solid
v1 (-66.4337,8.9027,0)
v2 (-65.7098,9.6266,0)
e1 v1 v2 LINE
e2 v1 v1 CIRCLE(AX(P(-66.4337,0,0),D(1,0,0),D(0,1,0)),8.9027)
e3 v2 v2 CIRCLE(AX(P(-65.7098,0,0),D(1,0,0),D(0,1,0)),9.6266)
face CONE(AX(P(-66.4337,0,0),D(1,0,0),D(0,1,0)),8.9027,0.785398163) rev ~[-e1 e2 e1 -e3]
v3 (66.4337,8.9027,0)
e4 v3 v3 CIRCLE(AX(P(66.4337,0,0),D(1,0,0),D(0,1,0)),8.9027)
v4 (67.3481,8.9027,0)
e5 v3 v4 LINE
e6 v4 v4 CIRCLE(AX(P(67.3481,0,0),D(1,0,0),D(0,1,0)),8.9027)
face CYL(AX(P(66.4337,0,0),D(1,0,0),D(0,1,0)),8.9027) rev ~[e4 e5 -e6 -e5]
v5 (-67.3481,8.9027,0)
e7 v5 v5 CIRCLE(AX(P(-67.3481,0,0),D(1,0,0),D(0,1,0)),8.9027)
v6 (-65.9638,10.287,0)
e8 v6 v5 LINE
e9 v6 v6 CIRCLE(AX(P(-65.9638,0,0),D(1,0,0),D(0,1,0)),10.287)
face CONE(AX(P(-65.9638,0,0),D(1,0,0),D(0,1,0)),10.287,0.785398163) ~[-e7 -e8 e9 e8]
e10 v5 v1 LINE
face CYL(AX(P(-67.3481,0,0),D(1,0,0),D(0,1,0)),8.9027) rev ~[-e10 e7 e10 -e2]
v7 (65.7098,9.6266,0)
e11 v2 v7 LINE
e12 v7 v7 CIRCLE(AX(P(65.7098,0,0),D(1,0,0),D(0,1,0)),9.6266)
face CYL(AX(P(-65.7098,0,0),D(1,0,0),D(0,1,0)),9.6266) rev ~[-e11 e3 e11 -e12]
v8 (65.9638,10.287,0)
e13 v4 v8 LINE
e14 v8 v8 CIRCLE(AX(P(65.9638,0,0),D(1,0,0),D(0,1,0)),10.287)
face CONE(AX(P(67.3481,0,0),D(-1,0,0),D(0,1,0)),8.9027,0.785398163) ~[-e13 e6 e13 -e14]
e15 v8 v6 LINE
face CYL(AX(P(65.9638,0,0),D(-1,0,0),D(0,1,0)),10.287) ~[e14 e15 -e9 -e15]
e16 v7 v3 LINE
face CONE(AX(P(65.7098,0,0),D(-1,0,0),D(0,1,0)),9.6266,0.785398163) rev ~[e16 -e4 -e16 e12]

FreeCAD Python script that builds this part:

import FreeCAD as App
import Part
import Sketcher

V = App.Vector
Q = App.Units.Quantity


def add_polygon(sketch, points):
    """Adds a closed chain of lines whose ends are joined by coincident constraints."""
    first, n = sketch.GeometryCount, len(points)
    for a, b in zip(points, points[1:] + points[:1]):
        sketch.addGeometry(Part.LineSegment(App.Vector(*a, 0), App.Vector(*b, 0)), False)
    for i in range(n):
        sketch.addConstraint(Sketcher.Constraint("Coincident", first + i, 2, first + (i + 1) % n, 1))

doc = App.newDocument("Part")
body = doc.addObject("PartDesign::Body", "Body")

# Sketch on XY plane
sketch1 = body.newObject("Sketcher::SketchObject", "Sketch")
sketch1.AttachmentSupport = (doc.getObject("XY_Plane"), [""])
sketch1.MapMode = "FlatFace"
add_polygon(sketch1, [(-66, 10.3), (-67.3, 8.9), (-66.4, 8.9), (-65.7, 9.6), (65.7, 9.6), (66.4, 8.9), (67.3, 8.9), (66, 10.3)])  # lines 0-7
sketch1.addConstraint(Sketcher.Constraint("Horizontal", 1))
sketch1.addConstraint(Sketcher.Constraint("Horizontal", 3))
sketch1.addConstraint(Sketcher.Constraint("Horizontal", 5))
sketch1.addConstraint(Sketcher.Constraint("Horizontal", 7))
sketch1.addConstraint(Sketcher.Constraint("Symmetric", 1, 2, 4, 2, -2))
sketch1.addConstraint(Sketcher.Constraint("Parallel", 0, 2))
sketch1.addConstraint(Sketcher.Constraint("Perpendicular", 2, 4))
sketch1.addConstraint(Sketcher.Constraint("Parallel", 4, 6))
sketch1.addConstraint(Sketcher.Constraint("Equal", 1, 5))
sketch1.addConstraint(Sketcher.Constraint("Equal", 2, 4))
sketch1.addConstraint(Sketcher.Constraint("DistanceX", 1, 1, 1, 2, Q("0.036 in")))
sketch1.addConstraint(Sketcher.Constraint("DistanceX", 3, 1, 3, 2, Q("5.174 in")))
sketch1.addConstraint(Sketcher.Constraint("DistanceX", 7, 2, 7, 1, Q("5.194 in")))
sketch1.addConstraint(Sketcher.Constraint("DistanceY", -1, 1, 2, 2, Q("0.379 in")))
sketch1.addConstraint(Sketcher.Constraint("DistanceX", 1, 2, 4, 2, Q("5.231 in")))
revolution = body.newObject("PartDesign::Revolution", "Revolution")
revolution.Profile = sketch1
revolution.ReferenceAxis = (sketch1, ["H_Axis"])
revolution.Angle = 360

doc.recompute()
